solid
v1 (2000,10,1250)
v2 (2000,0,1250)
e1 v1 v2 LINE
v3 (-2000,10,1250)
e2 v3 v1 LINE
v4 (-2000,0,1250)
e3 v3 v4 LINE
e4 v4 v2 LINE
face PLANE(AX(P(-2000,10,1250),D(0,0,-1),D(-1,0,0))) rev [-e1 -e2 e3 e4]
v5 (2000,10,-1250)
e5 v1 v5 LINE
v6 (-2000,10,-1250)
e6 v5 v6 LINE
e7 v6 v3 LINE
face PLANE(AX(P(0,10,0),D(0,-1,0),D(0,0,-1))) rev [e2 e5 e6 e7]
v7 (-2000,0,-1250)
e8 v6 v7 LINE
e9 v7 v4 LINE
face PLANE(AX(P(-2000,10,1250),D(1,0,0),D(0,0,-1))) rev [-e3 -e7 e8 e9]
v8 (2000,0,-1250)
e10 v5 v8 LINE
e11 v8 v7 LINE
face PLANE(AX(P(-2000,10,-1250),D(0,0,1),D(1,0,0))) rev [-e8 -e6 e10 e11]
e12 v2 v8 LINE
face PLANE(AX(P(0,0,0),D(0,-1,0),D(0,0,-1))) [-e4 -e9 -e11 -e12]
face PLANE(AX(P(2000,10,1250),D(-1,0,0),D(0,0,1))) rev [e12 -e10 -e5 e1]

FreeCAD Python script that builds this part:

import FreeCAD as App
import Part
import Sketcher

V = App.Vector
Q = App.Units.Quantity

doc = App.newDocument("Part")
body = doc.addObject("PartDesign::Body", "Body")

# Sketch on XZ plane
sketch1 = body.newObject("Sketcher::SketchObject", "Sketch")
sketch1.AttachmentSupport = (doc.getObject("XZ_Plane"), [""])
sketch1.MapMode = "FlatFace"
sketch1.addGeometry([
    Part.LineSegment(V(-2000, -1250, 0), V(-2000, 1250, 0)),
    Part.LineSegment(V(-2000, 1250, 0), V(2000, 1250, 0)),
    Part.LineSegment(V(2000, 1250, 0), V(2000, -1250, 0)),
    Part.LineSegment(V(2000, -1250, 0), V(-2000, -1250, 0)),
], False)
sketch1.addConstraint([
    Sketcher.Constraint("Coincident", 0, 2, 1, 1),
    Sketcher.Constraint("Coincident", 1, 2, 2, 1),
    Sketcher.Constraint("Coincident", 2, 2, 3, 1),
    Sketcher.Constraint("Coincident", 3, 2, 0, 1),
    Sketcher.Constraint("Vertical", 0),
    Sketcher.Constraint("Horizontal", 1),
    Sketcher.Constraint("Vertical", 2),
    Sketcher.Constraint("Horizontal", 3),
    Sketcher.Constraint("Symmetric", 0, 2, 2, 2, -1, 1),
    Sketcher.Constraint("DistanceX", 1, 1, 1, 2, Q("4000 mm")),
    Sketcher.Constraint("DistanceY", 0, 1, 0, 2, Q("2500 mm")),
])
pad1 = body.newObject("PartDesign::Pad", "Pad")
pad1.Profile = sketch1
pad1.Length = 10
pad1.Reversed = True

doc.recompute()
